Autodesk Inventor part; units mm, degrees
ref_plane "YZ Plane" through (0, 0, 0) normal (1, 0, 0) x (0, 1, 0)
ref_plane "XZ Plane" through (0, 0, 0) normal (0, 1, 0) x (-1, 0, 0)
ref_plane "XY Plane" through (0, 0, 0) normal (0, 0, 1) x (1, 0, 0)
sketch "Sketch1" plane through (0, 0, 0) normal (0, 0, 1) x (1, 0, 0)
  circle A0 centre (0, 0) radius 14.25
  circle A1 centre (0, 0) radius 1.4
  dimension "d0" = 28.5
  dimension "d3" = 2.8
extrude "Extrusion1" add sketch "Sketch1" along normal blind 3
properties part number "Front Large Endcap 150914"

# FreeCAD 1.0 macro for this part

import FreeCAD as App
import Part
import Sketcher

V = App.Vector
Q = App.Units.Quantity

doc = App.newDocument("Part")
params = doc.addObject("Spreadsheet::Sheet", "Params")
for row, (alias, value) in enumerate([
    ("sketch1_diameter", "28.5 mm"),
    ("sketch1_diameter2", "2.8 mm"),
    ("pad1_length", "3 mm"),
], start=1):
    params.set(f"A{row}", alias)
    params.set(f"B{row}", "=" + value)
    params.setAlias(f"B{row}", alias)

body = doc.addObject("PartDesign::Body", "Body")

sketch1 = body.newObject("Sketcher::SketchObject", "Sketch")
sketch1.AttachmentSupport = (doc.getObject("XY_Plane"), [""])
sketch1.MapMode = "FlatFace"
sketch1.addGeometry(Part.Circle(V(0, 0, 0), V(0, 0, 1), 14.2), False)
sketch1.addGeometry(Part.Circle(V(0, 0, 0), V(0, 0, 1), 1.4), False)
sketch1.addConstraint(Sketcher.Constraint("Coincident", 0, 3, -1, 1))
sketch1.addConstraint(Sketcher.Constraint("Coincident", 1, 3, -1, 1))
sketch1.addConstraint(Sketcher.Constraint("Diameter", 0, Q("28.5 mm")))
sketch1.addConstraint(Sketcher.Constraint("Diameter", 1, Q("2.8 mm")))
sketch1.setExpression("Constraints[2]", "Params.sketch1_diameter")
sketch1.setExpression("Constraints[3]", "Params.sketch1_diameter2")
pad1 = body.newObject("PartDesign::Pad", "Pad")
pad1.Profile = sketch1
pad1.setExpression("Length", "Params.pad1_length")

doc.recompute()
